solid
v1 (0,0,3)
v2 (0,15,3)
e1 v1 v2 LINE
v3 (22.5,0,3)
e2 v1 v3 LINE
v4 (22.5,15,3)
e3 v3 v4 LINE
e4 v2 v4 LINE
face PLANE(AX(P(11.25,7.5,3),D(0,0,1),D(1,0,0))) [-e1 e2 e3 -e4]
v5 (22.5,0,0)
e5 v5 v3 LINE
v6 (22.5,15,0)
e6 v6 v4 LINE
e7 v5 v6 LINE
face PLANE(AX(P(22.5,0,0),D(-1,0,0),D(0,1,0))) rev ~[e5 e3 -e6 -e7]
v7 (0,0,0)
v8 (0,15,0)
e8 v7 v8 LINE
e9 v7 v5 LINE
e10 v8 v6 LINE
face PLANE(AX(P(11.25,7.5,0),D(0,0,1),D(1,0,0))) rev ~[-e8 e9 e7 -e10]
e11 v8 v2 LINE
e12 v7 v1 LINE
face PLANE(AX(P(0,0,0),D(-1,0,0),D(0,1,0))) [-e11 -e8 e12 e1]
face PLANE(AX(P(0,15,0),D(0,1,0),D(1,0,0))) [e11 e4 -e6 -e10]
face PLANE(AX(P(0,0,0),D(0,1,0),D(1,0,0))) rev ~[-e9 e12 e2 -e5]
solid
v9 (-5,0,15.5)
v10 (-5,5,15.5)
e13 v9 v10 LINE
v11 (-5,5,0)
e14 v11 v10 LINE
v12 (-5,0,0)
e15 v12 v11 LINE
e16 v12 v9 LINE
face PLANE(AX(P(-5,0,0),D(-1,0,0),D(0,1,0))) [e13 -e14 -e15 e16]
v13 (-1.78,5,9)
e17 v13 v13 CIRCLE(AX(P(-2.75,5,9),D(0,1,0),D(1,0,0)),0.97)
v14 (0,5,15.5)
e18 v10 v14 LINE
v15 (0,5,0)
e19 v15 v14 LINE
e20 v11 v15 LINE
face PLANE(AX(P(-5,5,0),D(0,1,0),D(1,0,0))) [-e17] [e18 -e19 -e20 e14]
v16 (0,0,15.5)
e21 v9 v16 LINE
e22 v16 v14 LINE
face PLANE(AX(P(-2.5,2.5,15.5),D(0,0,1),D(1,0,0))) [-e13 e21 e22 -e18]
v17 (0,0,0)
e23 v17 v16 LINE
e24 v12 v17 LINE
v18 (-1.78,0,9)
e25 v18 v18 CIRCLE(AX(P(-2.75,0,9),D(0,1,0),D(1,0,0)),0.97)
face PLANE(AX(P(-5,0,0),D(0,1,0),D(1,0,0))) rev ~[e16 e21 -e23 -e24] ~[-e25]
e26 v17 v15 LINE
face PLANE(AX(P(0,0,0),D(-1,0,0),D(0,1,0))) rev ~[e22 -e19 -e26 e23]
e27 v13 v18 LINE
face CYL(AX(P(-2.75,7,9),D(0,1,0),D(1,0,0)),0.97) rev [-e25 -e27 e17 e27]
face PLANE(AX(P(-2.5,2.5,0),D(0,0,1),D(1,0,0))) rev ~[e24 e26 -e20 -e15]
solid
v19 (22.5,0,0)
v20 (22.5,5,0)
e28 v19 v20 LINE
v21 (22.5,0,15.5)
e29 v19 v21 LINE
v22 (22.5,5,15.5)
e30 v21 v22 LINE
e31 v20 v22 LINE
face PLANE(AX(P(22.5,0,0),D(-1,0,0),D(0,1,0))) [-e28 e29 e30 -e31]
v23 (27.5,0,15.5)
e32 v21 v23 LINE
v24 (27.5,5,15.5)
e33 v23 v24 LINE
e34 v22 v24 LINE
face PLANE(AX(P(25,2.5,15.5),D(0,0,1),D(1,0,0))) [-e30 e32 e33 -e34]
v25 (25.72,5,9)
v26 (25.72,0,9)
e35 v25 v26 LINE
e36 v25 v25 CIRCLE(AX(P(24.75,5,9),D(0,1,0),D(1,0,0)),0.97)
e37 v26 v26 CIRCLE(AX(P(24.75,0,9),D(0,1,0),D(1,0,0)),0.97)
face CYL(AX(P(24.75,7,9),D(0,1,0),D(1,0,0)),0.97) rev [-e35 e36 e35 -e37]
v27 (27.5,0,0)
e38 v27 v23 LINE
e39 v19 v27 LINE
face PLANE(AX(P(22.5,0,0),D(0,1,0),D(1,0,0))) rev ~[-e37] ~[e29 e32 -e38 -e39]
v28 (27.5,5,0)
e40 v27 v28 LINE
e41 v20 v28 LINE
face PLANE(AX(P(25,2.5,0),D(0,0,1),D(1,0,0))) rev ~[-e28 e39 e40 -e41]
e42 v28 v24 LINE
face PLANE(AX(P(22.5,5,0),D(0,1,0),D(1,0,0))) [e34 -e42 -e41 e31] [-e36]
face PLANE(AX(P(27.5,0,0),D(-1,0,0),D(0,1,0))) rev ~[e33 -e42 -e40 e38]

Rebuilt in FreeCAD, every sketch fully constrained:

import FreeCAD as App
import Part
import Sketcher
from FreeCAD import Vector


def add_polygon(sketch, points):
    """Adds a closed chain of lines whose ends are joined by coincident constraints."""
    first, n = sketch.GeometryCount, len(points)
    for a, b in zip(points, points[1:] + points[:1]):
        sketch.addGeometry(Part.LineSegment(App.Vector(*a, 0), App.Vector(*b, 0)), False)
    for i in range(n):
        sketch.addConstraint(Sketcher.Constraint("Coincident", first + i, 2, first + (i + 1) % n, 1))

doc = App.newDocument("Part")
body = doc.addObject("PartDesign::Body", "Body")

sketch1 = doc.addObject("Sketcher::SketchObject", "Sketch")
body.addObject(sketch1)
sketch1.AttachmentSupport = (doc.XY_Plane, [""])
sketch1.MapMode = "FlatFace"
add_polygon(sketch1, [(0, 15), (0, 0), (22.5, 0), (22.5, 15)])
sketch1.addConstraint(Sketcher.Constraint("Vertical", 0))
sketch1.addConstraint(Sketcher.Constraint("Horizontal", 1))
sketch1.addConstraint(Sketcher.Constraint("Vertical", 2))
sketch1.addConstraint(Sketcher.Constraint("Horizontal", 3))
sketch1.addConstraint(Sketcher.Constraint("Coincident", 0, 2, -1, 1))
sketch1.addConstraint(Sketcher.Constraint("DistanceY", 0, 2, 0, 1, 15.0))
sketch1.addConstraint(Sketcher.Constraint("DistanceX", 1, 1, 1, 2, 22.5))
pad1 = doc.addObject("PartDesign::Pad", "Pad")
body.addObject(pad1)
pad1.Profile = sketch1
pad1.Length = 3
body2 = doc.addObject("PartDesign::Body", "Body001")

sketch2 = doc.addObject("Sketcher::SketchObject", "Sketch001")
body2.addObject(sketch2)
sketch2.AttachmentSupport = (doc.getObject("XY_Plane001"), [""])
sketch2.MapMode = "FlatFace"
sketch2.addGeometry(Part.Circle(Vector(0, 0, 0), Vector(0, 0, 1), 0.97), False)
sketch2.addConstraint(Sketcher.Constraint("Coincident", 0, 3, -1, 1))
sketch2.addConstraint(Sketcher.Constraint("Diameter", 0, 1.94))
pad2 = doc.addObject("PartDesign::Pad", "Pad001")
body2.addObject(pad2)
pad2.Profile = sketch2
pad2.Length = 10
body3 = doc.addObject("PartDesign::Body", "Body002")
doc.recompute()

body2.Placement = App.Placement(Vector(0, 0, 0), App.Rotation(Vector(1, 0, 0), 90))
boolean = doc.addObject("PartDesign::Boolean", "Boolean")
body3.addObject(boolean)
boolean.Type = "Fuse"
boolean.addObjects([body2])
body4 = doc.addObject("PartDesign::Body", "Body003")
doc.recompute()

body3.Placement = App.Placement(Vector(-2.75, 7, 9), App.Rotation(Vector(0, 0, 1), 0))
boolean2 = doc.addObject("PartDesign::Boolean", "Boolean001")
body4.addObject(boolean2)
boolean2.Type = "Fuse"
boolean2.addObjects([body3])
body5 = doc.addObject("PartDesign::Body", "Body004")

sketch3 = doc.addObject("Sketcher::SketchObject", "Sketch002")
body5.addObject(sketch3)
sketch3.AttachmentSupport = (doc.getObject("XY_Plane004"), [""])
sketch3.MapMode = "FlatFace"
add_polygon(sketch3, [(-5, 5), (-5, 0), (0, 0), (0, 5)])
sketch3.addConstraint(Sketcher.Constraint("Vertical", 0))
sketch3.addConstraint(Sketcher.Constraint("Horizontal", 1))
sketch3.addConstraint(Sketcher.Constraint("Vertical", 2))
sketch3.addConstraint(Sketcher.Constraint("Horizontal", 3))
sketch3.addConstraint(Sketcher.Constraint("Coincident", 1, 2, -1, 1))
sketch3.addConstraint(Sketcher.Constraint("Equal", 3, 0))
sketch3.addConstraint(Sketcher.Constraint("DistanceX", 1, 1, 1, 2, 5.0))
pad3 = doc.addObject("PartDesign::Pad", "Pad002")
body5.addObject(pad3)
pad3.Profile = sketch3
pad3.Length = 15.5
doc.recompute()

boolean3 = doc.addObject("PartDesign::Boolean", "Boolean002")
body5.addObject(boolean3)
boolean3.Type = "Cut"
boolean3.addObjects([body4])
body6 = doc.addObject("PartDesign::Body", "Body005")

sketch4 = doc.addObject("Sketcher::SketchObject", "Sketch003")
body6.addObject(sketch4)
sketch4.AttachmentSupport = (doc.getObject("XY_Plane005"), [""])
sketch4.MapMode = "FlatFace"
sketch4.addGeometry(Part.Circle(Vector(0, 0, 0), Vector(0, 0, 1), 0.97), False)
sketch4.addConstraint(Sketcher.Constraint("Coincident", 0, 3, -1, 1))
sketch4.addConstraint(Sketcher.Constraint("Diameter", 0, 1.94))
pad4 = doc.addObject("PartDesign::Pad", "Pad003")
body6.addObject(pad4)
pad4.Profile = sketch4
pad4.Length = 10
body7 = doc.addObject("PartDesign::Body", "Body006")
doc.recompute()

body6.Placement = App.Placement(Vector(0, 0, 0), App.Rotation(Vector(1, 0, 0), 90))
boolean4 = doc.addObject("PartDesign::Boolean", "Boolean003")
body7.addObject(boolean4)
boolean4.Type = "Fuse"
boolean4.addObjects([body6])
body8 = doc.addObject("PartDesign::Body", "Body007")
doc.recompute()

body7.Placement = App.Placement(Vector(24.75, 7, 9), App.Rotation(Vector(0, 0, 1), 0))
boolean5 = doc.addObject("PartDesign::Boolean", "Boolean004")
body8.addObject(boolean5)
boolean5.Type = "Fuse"
boolean5.addObjects([body7])
body9 = doc.addObject("PartDesign::Body", "Body008")

sketch5 = doc.addObject("Sketcher::SketchObject", "Sketch004")
body9.addObject(sketch5)
sketch5.AttachmentSupport = (doc.getObject("XY_Plane008"), [""])
sketch5.MapMode = "FlatFace"
add_polygon(sketch5, [(22.5, 5), (22.5, 0), (27.5, 0), (27.5, 5)])
sketch5.addConstraint(Sketcher.Constraint("Vertical", 0))
sketch5.addConstraint(Sketcher.Constraint("Horizontal", 1))
sketch5.addConstraint(Sketcher.Constraint("Vertical", 2))
sketch5.addConstraint(Sketcher.Constraint("Horizontal", 3))
sketch5.addConstraint(Sketcher.Constraint("PointOnObject", 0, 2, -1))
sketch5.addConstraint(Sketcher.Constraint("Equal", 3, 0))
sketch5.addConstraint(Sketcher.Constraint("DistanceX", 1, 1, 1, 2, 5.0))
sketch5.addConstraint(Sketcher.Constraint("DistanceX", -1, 1, 0, 2, 22.5))
pad5 = doc.addObject("PartDesign::Pad", "Pad004")
body9.addObject(pad5)
pad5.Profile = sketch5
pad5.Length = 15.5
doc.recompute()

boolean6 = doc.addObject("PartDesign::Boolean", "Boolean005")
body9.addObject(boolean6)
boolean6.Type = "Cut"
boolean6.addObjects([body8])

doc.recompute()
